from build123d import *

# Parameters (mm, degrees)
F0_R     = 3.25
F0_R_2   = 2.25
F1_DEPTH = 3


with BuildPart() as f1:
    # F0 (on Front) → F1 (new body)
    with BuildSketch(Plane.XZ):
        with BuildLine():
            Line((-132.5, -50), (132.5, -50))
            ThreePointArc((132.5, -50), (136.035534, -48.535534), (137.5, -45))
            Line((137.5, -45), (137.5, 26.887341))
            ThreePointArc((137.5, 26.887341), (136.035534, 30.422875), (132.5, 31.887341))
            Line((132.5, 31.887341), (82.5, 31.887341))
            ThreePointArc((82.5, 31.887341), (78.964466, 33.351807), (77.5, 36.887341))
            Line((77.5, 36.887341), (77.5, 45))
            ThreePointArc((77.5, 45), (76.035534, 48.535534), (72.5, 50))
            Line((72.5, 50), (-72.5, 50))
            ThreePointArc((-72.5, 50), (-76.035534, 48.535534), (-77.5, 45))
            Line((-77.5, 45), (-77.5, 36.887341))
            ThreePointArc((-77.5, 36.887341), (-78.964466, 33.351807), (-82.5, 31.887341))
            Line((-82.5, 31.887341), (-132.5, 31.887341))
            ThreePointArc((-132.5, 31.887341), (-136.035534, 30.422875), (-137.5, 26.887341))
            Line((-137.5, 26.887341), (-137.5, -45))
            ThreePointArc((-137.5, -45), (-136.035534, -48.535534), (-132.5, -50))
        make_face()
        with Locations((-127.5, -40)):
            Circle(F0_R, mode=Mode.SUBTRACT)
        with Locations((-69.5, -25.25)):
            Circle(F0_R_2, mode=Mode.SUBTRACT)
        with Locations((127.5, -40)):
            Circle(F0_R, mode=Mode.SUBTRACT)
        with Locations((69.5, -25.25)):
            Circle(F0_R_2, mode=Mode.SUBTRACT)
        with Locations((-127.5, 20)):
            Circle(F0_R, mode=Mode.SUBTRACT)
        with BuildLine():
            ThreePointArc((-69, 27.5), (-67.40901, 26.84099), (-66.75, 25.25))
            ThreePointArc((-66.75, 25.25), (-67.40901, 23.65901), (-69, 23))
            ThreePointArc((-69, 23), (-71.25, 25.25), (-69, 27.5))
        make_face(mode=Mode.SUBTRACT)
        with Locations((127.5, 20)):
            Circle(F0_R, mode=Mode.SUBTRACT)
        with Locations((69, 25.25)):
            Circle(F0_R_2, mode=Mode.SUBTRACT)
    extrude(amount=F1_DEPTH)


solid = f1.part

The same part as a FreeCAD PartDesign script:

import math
import FreeCAD as App
import Part
import Sketcher
Q = App.Units.Quantity

doc = App.newDocument("Part")
body = doc.addObject("PartDesign::Body", "Body")

# Sketch on XZ plane
sketch1 = body.newObject("Sketcher::SketchObject", "Sketch")
sketch1.AttachmentSupport = (doc.getObject("XZ_Plane"), [""])
sketch1.MapMode = "FlatFace"
sketch1.addGeometry(Part.LineSegment(App.Vector(-132.5, -50, 0), App.Vector(132.5, -50, 0)), False)
sketch1.addGeometry(Part.ArcOfCircle(Part.Circle(App.Vector(132.5, -45, 0), App.Vector(0, 0, 1), 5), math.radians(-90), math.radians(0)), False)
sketch1.addGeometry(Part.LineSegment(App.Vector(137.5, -45, 0), App.Vector(137.5, 26.9, 0)), False)
sketch1.addGeometry(Part.ArcOfCircle(Part.Circle(App.Vector(132.5, 26.9, 0), App.Vector(0, 0, 1), 5), math.radians(0), math.radians(90)), False)
sketch1.addGeometry(Part.LineSegment(App.Vector(132.5, 31.9, 0), App.Vector(82.5, 31.9, 0)), False)
sketch1.addGeometry(Part.ArcOfCircle(Part.Circle(App.Vector(82.5, 36.9, 0), App.Vector(0, 0, 1), 5), math.radians(180), math.radians(270)), False)
sketch1.addGeometry(Part.LineSegment(App.Vector(77.5, 36.9, 0), App.Vector(77.5, 45, 0)), False)
sketch1.addGeometry(Part.ArcOfCircle(Part.Circle(App.Vector(72.5, 45, 0), App.Vector(0, 0, 1), 5), math.radians(0), math.radians(90)), False)
sketch1.addGeometry(Part.LineSegment(App.Vector(72.5, 50, 0), App.Vector(-72.5, 50, 0)), False)
sketch1.addGeometry(Part.ArcOfCircle(Part.Circle(App.Vector(-72.5, 45, 0), App.Vector(0, 0, 1), 5), math.radians(90), math.radians(180)), False)
sketch1.addGeometry(Part.LineSegment(App.Vector(-77.5, 45, 0), App.Vector(-77.5, 36.9, 0)), False)
sketch1.addGeometry(Part.ArcOfCircle(Part.Circle(App.Vector(-82.5, 36.9, 0), App.Vector(0, 0, 1), 5), math.radians(-90), math.radians(0)), False)
sketch1.addGeometry(Part.LineSegment(App.Vector(-82.5, 31.9, 0), App.Vector(-132.5, 31.9, 0)), False)
sketch1.addGeometry(Part.ArcOfCircle(Part.Circle(App.Vector(-132.5, 26.9, 0), App.Vector(0, 0, 1), 5), math.radians(90), math.radians(180)), False)
sketch1.addGeometry(Part.LineSegment(App.Vector(-137.5, 26.9, 0), App.Vector(-137.5, -45, 0)), False)
sketch1.addGeometry(Part.ArcOfCircle(Part.Circle(App.Vector(-132.5, -45, 0), App.Vector(0, 0, 1), 5), math.radians(180), math.radians(270)), False)
sketch1.addGeometry(Part.Circle(App.Vector(-127.5, -40, 0), App.Vector(0, 0, 1), 3.2), False)
sketch1.addGeometry(Part.Circle(App.Vector(-69.5, -25.2, 0), App.Vector(0, 0, 1), 2.2), False)
sketch1.addGeometry(Part.Circle(App.Vector(127.5, -40, 0), App.Vector(0, 0, 1), 3.2), False)
sketch1.addGeometry(Part.Circle(App.Vector(69.5, -25.2, 0), App.Vector(0, 0, 1), 2.2), False)
sketch1.addGeometry(Part.Circle(App.Vector(-127.5, 20, 0), App.Vector(0, 0, 1), 3.2), False)
sketch1.addGeometry(Part.ArcOfCircle(Part.Circle(App.Vector(-69, 25.2, 0), App.Vector(0, 0, 1), 2.2), math.radians(90), math.radians(270)), False)
sketch1.addGeometry(Part.ArcOfCircle(Part.Circle(App.Vector(-69, 25.2, 0), App.Vector(0, 0, 1), 2.3), math.radians(0), math.radians(90)), False)
sketch1.addGeometry(Part.ArcOfCircle(Part.Circle(App.Vector(-69, 25.3, 0), App.Vector(0, 0, 1), 2.3), math.radians(-90), math.radians(0)), False)
sketch1.addGeometry(Part.Circle(App.Vector(69, 25.2, 0), App.Vector(0, 0, 1), 2.2), False)
sketch1.addGeometry(Part.Circle(App.Vector(127.5, 20, 0), App.Vector(0, 0, 1), 3.2), False)
sketch1.addConstraint(Sketcher.Constraint("Tangent", 0, 2, 1, 1))
sketch1.addConstraint(Sketcher.Constraint("Tangent", 1, 2, 2, 1))
sketch1.addConstraint(Sketcher.Constraint("Tangent", 2, 2, 3, 1))
sketch1.addConstraint(Sketcher.Constraint("Tangent", 3, 2, 4, 1))
sketch1.addConstraint(Sketcher.Constraint("Tangent", 4, 2, 5, 2))
sketch1.addConstraint(Sketcher.Constraint("Tangent", 5, 1, 6, 1))
sketch1.addConstraint(Sketcher.Constraint("Tangent", 6, 2, 7, 1))
sketch1.addConstraint(Sketcher.Constraint("Tangent", 7, 2, 8, 1))
sketch1.addConstraint(Sketcher.Constraint("Tangent", 8, 2, 9, 1))
sketch1.addConstraint(Sketcher.Constraint("Tangent", 9, 2, 10, 1))
sketch1.addConstraint(Sketcher.Constraint("Tangent", 10, 2, 11, 2))
sketch1.addConstraint(Sketcher.Constraint("Tangent", 11, 1, 12, 1))
sketch1.addConstraint(Sketcher.Constraint("Tangent", 12, 2, 13, 1))
sketch1.addConstraint(Sketcher.Constraint("Tangent", 13, 2, 14, 1))
sketch1.addConstraint(Sketcher.Constraint("Tangent", 14, 2, 15, 1))
sketch1.addConstraint(Sketcher.Constraint("Tangent", 15, 2, 0, 1))
sketch1.addConstraint(Sketcher.Constraint("Tangent", 21, 1, 22, 2))
sketch1.addConstraint(Sketcher.Constraint("Tangent", 22, 1, 23, 2))
sketch1.addConstraint(Sketcher.Constraint("Tangent", 23, 1, 21, 2))
sketch1.addConstraint(Sketcher.Constraint("Horizontal", 0))
sketch1.addConstraint(Sketcher.Constraint("Vertical", 2))
sketch1.addConstraint(Sketcher.Constraint("Horizontal", 4))
sketch1.addConstraint(Sketcher.Constraint("Vertical", 6))
sketch1.addConstraint(Sketcher.Constraint("Horizontal", 8))
sketch1.addConstraint(Sketcher.Constraint("Vertical", 10))
sketch1.addConstraint(Sketcher.Constraint("Horizontal", 12))
sketch1.addConstraint(Sketcher.Constraint("Vertical", 14))
sketch1.addConstraint(Sketcher.Constraint("Equal", 1, 3))
sketch1.addConstraint(Sketcher.Constraint("Equal", 3, 5))
sketch1.addConstraint(Sketcher.Constraint("Equal", 5, 7))
sketch1.addConstraint(Sketcher.Constraint("Equal", 7, 9))
sketch1.addConstraint(Sketcher.Constraint("Equal", 9, 11))
sketch1.addConstraint(Sketcher.Constraint("Equal", 11, 13))
sketch1.addConstraint(Sketcher.Constraint("Equal", 13, 15))
sketch1.addConstraint(Sketcher.Constraint("Equal", 16, 18))
sketch1.addConstraint(Sketcher.Constraint("Equal", 17, 19))
sketch1.addConstraint(Sketcher.Constraint("Equal", 18, 20))
sketch1.addConstraint(Sketcher.Constraint("Equal", 19, 21))
sketch1.addConstraint(Sketcher.Constraint("Equal", 23, 24))
sketch1.addConstraint(Sketcher.Constraint("Equal", 20, 25))
sketch1.addConstraint(Sketcher.Constraint("Symmetric", 5, 3, 11, 3, -2))
sketch1.addConstraint(Sketcher.Constraint("Symmetric", 16, 3, 18, 3, -2))
sketch1.addConstraint(Sketcher.Constraint("Symmetric", 17, 3, 19, 3, -2))
sketch1.addConstraint(Sketcher.Constraint("Symmetric", 21, 3, 24, 3, -2))
sketch1.addConstraint(Sketcher.Constraint("Symmetric", 20, 3, 25, 3, -2))
sketch1.addConstraint(Sketcher.Constraint("Horizontal", 24, 3, 22, 1))
sketch1.addConstraint(Sketcher.Constraint("Vertical", 16, 3, 20, 3))
sketch1.addConstraint(Sketcher.Constraint("Vertical", 23, 3, 21, 1))
sketch1.addConstraint(Sketcher.Constraint("Vertical", 21, 1, 23, 1))
sketch1.addConstraint(Sketcher.Constraint("Equal", 4, 12))
sketch1.addConstraint(Sketcher.Constraint("Radius", 1, Q("5 mm")))
sketch1.addConstraint(Sketcher.Constraint("Diameter", 16, Q("6.5 mm")))
sketch1.addConstraint(Sketcher.Constraint("Diameter", 17, Q("4.5 mm")))
sketch1.addConstraint(Sketcher.Constraint("DistanceX", 0, 1, 0, 2, Q("265 mm")))
sketch1.addConstraint(Sketcher.Constraint("DistanceX", 4, 2, 4, 1, Q("50 mm")))
sketch1.addConstraint(Sketcher.Constraint("DistanceY", 1, 3, -1, 1, Q("45 mm")))
sketch1.addConstraint(Sketcher.Constraint("DistanceY", -1, 1, 7, 3, Q("45 mm")))
sketch1.addConstraint(Sketcher.Constraint("DistanceY", 16, 3, -1, 1, Q("40 mm")))
sketch1.addConstraint(Sketcher.Constraint("DistanceY", -1, 1, 20, 3, Q("20 mm")))
sketch1.addConstraint(Sketcher.Constraint("DistanceX", 21, 3, -1, 1, Q("69 mm")))
sketch1.addConstraint(Sketcher.Constraint("DistanceY", -1, 1, 23, 1, Q("23 mm")))
sketch1.addConstraint(Sketcher.Constraint("DistanceX", 15, 3, 16, 3, Q("5 mm")))
sketch1.addConstraint(Sketcher.Constraint("DistanceX", 16, 3, 17, 3, Q("58 mm")))
sketch1.addConstraint(Sketcher.Constraint("DistanceY", 17, 3, 21, 3, Q("50.5 mm")))
sketch1.addConstraint(Sketcher.Constraint("DistanceY", 2, 1, 2, 2, Q("71.887341 mm")))
pad1 = body.newObject("PartDesign::Pad", "Pad")
pad1.Profile = sketch1
pad1.Length = 3

doc.recompute()
